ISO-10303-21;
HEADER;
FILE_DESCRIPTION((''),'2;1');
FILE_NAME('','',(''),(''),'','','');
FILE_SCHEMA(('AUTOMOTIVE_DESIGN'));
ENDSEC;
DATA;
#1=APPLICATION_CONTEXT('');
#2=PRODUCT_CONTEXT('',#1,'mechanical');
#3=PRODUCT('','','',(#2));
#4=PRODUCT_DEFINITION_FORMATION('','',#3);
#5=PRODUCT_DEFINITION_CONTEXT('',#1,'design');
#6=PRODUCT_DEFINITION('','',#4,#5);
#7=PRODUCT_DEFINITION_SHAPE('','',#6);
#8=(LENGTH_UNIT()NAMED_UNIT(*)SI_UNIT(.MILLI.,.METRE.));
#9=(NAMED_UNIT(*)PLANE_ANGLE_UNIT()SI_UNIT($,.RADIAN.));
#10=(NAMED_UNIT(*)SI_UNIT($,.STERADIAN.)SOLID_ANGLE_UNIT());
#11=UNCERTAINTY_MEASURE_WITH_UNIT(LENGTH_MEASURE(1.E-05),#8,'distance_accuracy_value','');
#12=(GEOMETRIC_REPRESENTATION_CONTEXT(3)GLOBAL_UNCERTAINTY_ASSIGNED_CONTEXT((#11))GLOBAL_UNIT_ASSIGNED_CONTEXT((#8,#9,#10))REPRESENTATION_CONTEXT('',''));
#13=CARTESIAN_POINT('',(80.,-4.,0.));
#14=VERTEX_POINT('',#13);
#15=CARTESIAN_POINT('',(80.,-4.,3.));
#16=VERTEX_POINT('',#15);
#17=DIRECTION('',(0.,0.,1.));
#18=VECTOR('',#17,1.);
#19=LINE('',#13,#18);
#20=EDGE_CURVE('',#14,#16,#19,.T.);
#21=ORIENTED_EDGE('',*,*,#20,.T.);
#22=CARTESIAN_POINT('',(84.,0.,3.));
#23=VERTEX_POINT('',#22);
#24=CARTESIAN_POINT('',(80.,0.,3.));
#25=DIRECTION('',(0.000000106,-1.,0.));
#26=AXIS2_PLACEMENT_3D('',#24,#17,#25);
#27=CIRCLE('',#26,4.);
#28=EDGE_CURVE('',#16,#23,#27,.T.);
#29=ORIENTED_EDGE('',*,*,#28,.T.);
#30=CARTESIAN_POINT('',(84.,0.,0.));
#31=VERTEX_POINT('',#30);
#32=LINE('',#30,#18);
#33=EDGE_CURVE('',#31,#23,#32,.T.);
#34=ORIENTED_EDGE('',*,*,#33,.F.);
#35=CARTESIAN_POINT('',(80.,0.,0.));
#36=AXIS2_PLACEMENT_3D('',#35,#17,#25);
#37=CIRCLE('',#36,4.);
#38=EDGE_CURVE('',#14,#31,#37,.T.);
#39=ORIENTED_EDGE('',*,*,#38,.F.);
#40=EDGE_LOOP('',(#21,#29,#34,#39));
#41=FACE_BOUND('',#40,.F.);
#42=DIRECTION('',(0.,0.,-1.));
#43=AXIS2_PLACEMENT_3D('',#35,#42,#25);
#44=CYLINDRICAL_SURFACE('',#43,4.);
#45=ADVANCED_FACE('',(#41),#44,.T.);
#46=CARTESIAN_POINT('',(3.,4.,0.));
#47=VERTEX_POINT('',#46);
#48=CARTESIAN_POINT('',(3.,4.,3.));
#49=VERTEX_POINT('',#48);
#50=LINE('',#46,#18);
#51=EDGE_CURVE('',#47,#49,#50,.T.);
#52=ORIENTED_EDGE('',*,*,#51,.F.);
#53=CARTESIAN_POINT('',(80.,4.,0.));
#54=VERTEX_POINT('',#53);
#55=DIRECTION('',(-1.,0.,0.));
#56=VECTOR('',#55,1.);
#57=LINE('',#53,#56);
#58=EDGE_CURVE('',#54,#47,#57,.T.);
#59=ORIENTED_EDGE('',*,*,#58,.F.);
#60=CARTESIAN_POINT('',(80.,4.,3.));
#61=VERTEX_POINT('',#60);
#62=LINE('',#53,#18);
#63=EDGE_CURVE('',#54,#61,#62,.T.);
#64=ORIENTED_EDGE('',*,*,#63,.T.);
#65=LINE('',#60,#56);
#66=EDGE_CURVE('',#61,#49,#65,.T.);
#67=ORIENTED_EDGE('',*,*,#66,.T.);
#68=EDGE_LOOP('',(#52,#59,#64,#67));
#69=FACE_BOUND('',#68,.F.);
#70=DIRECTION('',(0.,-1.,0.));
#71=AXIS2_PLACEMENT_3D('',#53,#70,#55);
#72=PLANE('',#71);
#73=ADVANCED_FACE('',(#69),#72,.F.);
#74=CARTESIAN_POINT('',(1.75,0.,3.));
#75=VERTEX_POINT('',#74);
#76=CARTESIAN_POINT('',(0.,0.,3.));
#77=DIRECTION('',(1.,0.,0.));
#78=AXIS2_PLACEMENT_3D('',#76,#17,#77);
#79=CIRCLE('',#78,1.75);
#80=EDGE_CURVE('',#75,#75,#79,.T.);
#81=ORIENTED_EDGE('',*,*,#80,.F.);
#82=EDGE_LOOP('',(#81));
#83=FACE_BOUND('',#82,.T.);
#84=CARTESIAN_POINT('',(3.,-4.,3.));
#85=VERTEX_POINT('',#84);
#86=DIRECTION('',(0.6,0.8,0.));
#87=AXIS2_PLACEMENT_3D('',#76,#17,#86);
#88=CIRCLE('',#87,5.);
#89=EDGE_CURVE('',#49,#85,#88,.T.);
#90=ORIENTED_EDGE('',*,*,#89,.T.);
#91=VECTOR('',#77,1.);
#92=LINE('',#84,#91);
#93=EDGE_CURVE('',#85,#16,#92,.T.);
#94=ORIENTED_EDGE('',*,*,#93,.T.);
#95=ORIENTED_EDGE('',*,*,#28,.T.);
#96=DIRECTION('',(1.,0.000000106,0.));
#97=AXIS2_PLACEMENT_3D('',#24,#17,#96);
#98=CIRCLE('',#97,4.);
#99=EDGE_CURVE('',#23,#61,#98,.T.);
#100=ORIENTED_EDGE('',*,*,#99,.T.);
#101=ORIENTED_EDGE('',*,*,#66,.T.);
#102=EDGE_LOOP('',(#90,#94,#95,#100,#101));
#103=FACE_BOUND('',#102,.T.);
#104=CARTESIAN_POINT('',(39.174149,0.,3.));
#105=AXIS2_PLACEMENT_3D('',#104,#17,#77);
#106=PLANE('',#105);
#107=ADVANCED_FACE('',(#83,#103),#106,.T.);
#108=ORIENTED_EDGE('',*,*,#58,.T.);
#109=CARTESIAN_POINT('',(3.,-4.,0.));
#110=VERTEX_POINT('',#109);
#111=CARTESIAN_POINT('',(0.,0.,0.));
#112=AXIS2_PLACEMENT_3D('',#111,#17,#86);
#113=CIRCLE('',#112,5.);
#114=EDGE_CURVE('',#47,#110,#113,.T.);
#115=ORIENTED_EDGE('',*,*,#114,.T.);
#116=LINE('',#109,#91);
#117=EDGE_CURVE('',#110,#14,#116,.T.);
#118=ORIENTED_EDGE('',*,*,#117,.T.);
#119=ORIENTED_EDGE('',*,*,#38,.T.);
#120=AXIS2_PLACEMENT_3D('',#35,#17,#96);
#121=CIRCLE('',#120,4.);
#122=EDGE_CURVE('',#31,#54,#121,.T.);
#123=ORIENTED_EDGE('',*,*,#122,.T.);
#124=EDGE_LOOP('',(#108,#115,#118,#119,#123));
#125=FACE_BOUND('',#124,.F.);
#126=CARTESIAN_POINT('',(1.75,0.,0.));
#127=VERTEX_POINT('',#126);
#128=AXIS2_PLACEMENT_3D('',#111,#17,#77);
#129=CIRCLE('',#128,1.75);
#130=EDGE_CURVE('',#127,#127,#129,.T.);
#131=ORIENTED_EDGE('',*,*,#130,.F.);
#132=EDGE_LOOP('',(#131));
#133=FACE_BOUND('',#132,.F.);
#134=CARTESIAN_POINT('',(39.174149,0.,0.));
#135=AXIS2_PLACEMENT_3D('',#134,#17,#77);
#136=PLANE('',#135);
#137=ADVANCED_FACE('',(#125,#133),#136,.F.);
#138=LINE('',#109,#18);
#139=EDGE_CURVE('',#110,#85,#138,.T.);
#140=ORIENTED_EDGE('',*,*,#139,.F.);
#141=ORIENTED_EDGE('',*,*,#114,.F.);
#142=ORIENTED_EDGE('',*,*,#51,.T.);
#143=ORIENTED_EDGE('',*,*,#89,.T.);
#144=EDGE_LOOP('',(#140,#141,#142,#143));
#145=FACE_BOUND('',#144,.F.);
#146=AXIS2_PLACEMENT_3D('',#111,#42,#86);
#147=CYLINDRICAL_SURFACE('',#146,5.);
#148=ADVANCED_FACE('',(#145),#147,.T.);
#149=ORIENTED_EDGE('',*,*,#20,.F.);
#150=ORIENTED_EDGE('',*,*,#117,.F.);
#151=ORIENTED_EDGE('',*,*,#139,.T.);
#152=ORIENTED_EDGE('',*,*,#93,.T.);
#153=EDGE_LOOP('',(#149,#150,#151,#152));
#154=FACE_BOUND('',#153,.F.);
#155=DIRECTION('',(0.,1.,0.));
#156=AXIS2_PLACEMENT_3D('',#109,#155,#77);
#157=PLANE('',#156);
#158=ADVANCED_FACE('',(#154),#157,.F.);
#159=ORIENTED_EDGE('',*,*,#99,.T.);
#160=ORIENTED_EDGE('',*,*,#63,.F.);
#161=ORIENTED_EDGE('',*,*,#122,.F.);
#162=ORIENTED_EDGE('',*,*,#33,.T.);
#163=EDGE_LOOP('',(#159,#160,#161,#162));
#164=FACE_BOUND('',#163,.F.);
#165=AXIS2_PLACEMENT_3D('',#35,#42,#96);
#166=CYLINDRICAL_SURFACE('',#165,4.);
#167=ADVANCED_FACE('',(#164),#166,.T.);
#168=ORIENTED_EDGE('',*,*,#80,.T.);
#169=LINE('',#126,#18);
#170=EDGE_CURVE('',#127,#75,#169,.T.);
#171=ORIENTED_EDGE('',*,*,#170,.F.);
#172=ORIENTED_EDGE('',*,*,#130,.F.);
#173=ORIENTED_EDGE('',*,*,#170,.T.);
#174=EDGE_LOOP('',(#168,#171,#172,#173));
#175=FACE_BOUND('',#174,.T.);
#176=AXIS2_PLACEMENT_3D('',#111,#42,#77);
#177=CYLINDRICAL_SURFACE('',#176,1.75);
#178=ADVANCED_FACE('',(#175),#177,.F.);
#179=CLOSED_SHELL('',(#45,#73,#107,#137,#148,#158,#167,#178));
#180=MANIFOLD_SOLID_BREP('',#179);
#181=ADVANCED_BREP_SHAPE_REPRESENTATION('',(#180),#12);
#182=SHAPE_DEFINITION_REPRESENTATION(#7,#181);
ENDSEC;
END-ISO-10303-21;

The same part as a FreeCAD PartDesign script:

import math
import FreeCAD as App
import Part
import Sketcher

doc = App.newDocument("Part")
body = doc.addObject("PartDesign::Body", "Body")

sketch1 = doc.addObject("Sketcher::SketchObject", "Sketch")
body.addObject(sketch1)
sketch1.AttachmentSupport = (doc.XY_Plane, [""])
sketch1.MapMode = "FlatFace"
sketch1.addGeometry([
    Part.LineSegment(App.Vector(80, 4, 0), App.Vector(3, 4, 0)),
    Part.ArcOfCircle(Part.Circle(App.Vector(0, 0, 0), App.Vector(0, 0, 1), 5), math.radians(53), math.radians(307)),
    Part.LineSegment(App.Vector(3, -4, 0), App.Vector(80, -4, 0)),
    Part.ArcOfCircle(Part.Circle(App.Vector(80, 0, 0), App.Vector(0, 0, 1), 4), math.radians(-90), math.radians(0)),
    Part.ArcOfCircle(Part.Circle(App.Vector(80, 0, 0), App.Vector(0, 0, 1), 4), math.radians(0), math.radians(90)),
    Part.Circle(App.Vector(0, 0, 0), App.Vector(0, 0, 1), 1.8),
], False)
sketch1.addConstraint([
    Sketcher.Constraint("Coincident", 0, 2, 1, 1),
    Sketcher.Constraint("Coincident", 1, 2, 2, 1),
    Sketcher.Constraint("Tangent", 2, 2, 3, 1),
    Sketcher.Constraint("Tangent", 3, 2, 4, 1),
    Sketcher.Constraint("Tangent", 4, 2, 0, 1),
    Sketcher.Constraint("Horizontal", 0),
    Sketcher.Constraint("Horizontal", 2),
    Sketcher.Constraint("Coincident", 1, 3, -1, 1),
    Sketcher.Constraint("Coincident", 5, 3, -1, 1),
    Sketcher.Constraint("Equal", 3, 4),
    Sketcher.Constraint("PointOnObject", 3, 3, -1),
    Sketcher.Constraint("PointOnObject", 3, 2, -1),
    Sketcher.Constraint("Radius", 1, 5.0),
    Sketcher.Constraint("Radius", 3, 4.0),
    Sketcher.Constraint("Diameter", 5, 3.5),
    Sketcher.Constraint("DistanceX", 0, 2, 0, 1, 77.0),
])
pad1 = doc.addObject("PartDesign::Pad", "Pad")
body.addObject(pad1)
pad1.Profile = sketch1
pad1.Length = 3

doc.recompute()
